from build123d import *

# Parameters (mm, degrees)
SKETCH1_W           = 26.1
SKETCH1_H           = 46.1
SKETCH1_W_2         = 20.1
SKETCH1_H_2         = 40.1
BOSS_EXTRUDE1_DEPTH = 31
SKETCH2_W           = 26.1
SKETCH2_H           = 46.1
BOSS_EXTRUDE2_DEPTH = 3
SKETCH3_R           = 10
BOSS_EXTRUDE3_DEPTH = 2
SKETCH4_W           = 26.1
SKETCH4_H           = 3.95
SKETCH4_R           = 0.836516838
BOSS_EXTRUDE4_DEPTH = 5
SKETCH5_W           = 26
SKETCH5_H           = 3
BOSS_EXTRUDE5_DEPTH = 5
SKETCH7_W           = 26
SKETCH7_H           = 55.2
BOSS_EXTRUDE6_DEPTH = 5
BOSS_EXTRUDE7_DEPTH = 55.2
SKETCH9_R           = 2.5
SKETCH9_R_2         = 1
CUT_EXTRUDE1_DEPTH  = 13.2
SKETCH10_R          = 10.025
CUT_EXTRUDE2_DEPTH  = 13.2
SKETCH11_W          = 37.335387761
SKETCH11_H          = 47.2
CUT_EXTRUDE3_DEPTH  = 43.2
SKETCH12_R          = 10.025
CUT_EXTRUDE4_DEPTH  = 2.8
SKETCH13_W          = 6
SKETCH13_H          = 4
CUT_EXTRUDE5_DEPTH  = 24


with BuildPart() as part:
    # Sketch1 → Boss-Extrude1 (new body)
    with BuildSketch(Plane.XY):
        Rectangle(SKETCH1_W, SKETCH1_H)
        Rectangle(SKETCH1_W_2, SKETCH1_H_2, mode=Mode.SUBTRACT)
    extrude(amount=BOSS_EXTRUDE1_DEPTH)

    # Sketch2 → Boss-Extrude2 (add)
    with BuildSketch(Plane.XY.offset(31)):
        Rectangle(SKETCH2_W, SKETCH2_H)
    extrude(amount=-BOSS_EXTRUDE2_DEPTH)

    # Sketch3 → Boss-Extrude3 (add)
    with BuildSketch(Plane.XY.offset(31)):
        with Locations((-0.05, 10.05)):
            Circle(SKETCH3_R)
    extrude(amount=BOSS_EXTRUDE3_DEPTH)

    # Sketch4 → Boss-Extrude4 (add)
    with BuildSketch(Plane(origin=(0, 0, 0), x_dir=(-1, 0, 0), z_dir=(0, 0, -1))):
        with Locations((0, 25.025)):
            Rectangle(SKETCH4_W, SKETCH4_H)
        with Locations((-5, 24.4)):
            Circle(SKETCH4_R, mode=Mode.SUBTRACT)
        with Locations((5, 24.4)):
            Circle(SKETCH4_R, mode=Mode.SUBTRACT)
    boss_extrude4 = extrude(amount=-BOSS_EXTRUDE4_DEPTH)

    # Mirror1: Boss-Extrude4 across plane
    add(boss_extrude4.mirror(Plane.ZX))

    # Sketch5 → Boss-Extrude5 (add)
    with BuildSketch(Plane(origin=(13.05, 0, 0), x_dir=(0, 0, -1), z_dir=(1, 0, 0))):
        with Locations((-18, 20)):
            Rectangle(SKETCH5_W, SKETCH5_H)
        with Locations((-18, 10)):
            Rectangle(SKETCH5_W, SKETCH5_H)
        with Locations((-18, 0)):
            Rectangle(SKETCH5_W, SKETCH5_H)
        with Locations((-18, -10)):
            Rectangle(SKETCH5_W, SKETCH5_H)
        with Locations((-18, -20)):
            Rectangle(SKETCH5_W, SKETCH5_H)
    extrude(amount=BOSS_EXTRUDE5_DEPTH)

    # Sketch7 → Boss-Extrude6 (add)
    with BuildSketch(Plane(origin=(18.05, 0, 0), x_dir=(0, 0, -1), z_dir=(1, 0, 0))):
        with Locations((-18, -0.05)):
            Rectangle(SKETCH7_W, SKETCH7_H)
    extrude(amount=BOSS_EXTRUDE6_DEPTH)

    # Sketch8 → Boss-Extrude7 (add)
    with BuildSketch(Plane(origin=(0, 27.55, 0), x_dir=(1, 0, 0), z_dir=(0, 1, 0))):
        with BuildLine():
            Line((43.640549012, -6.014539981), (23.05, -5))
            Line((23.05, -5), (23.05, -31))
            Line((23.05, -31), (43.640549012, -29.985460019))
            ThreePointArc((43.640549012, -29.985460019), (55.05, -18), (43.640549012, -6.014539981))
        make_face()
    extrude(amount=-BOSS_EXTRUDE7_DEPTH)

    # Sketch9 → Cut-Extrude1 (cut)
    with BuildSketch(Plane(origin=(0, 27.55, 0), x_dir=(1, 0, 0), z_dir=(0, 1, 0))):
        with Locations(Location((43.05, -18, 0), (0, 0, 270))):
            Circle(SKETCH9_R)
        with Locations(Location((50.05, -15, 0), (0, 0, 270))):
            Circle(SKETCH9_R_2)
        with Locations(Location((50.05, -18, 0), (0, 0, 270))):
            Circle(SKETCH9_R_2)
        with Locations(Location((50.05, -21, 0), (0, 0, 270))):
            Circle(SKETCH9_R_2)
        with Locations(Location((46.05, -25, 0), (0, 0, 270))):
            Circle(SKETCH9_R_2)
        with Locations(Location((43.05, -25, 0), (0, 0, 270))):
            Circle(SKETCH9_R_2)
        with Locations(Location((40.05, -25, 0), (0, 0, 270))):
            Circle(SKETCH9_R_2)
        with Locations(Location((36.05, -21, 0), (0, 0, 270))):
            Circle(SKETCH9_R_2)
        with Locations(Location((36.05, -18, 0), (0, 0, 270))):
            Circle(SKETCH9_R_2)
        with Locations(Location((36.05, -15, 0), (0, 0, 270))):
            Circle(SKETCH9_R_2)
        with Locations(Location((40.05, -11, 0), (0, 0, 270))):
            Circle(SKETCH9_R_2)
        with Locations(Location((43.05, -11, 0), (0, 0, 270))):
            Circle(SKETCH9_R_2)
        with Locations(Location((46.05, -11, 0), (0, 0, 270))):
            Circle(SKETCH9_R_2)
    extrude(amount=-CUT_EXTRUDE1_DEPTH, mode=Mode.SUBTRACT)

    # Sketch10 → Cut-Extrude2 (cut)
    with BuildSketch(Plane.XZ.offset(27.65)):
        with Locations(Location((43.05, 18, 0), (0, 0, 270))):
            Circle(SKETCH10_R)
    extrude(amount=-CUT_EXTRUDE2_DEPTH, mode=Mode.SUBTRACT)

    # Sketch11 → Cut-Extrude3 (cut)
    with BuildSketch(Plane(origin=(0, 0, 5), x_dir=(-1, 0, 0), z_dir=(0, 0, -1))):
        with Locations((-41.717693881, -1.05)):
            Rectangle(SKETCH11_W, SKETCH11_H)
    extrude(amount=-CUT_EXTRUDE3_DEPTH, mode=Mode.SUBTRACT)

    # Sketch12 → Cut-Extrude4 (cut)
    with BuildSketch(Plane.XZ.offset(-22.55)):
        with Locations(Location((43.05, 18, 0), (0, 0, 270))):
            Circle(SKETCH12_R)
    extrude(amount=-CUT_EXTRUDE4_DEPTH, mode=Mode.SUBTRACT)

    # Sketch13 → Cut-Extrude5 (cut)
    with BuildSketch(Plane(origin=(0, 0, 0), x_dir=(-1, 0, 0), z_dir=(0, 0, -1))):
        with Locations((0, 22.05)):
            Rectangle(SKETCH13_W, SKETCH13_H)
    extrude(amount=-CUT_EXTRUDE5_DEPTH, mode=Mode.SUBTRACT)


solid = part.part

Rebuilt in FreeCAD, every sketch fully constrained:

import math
import FreeCAD as App
import Part
import Sketcher
from FreeCAD import Vector
Q = App.Units.Quantity

doc = App.newDocument("Part")
body = doc.addObject("PartDesign::Body", "Body")

sketch1 = body.newObject("Sketcher::SketchObject", "Sketch")
sketch1.AttachmentSupport = (doc.getObject("XY_Plane"), [""])
sketch1.MapMode = "FlatFace"
sketch1.addGeometry([
    Part.LineSegment(Vector(-13.05, 23.05, 0), Vector(-13.05, -23.05, 0)),
    Part.LineSegment(Vector(-13.05, -23.05, 0), Vector(13.05, -23.05, 0)),
    Part.LineSegment(Vector(13.05, -23.05, 0), Vector(13.05, 23.05, 0)),
    Part.LineSegment(Vector(13.05, 23.05, 0), Vector(-13.05, 23.05, 0)),
    Part.LineSegment(Vector(10.05, -20.05, 0), Vector(-10.05, -20.05, 0)),
    Part.LineSegment(Vector(-10.05, -20.05, 0), Vector(-10.05, 20.05, 0)),
    Part.LineSegment(Vector(-10.05, 20.05, 0), Vector(10.05, 20.05, 0)),
    Part.LineSegment(Vector(10.05, 20.05, 0), Vector(10.05, -20.05, 0)),
], False)
sketch1.addConstraint([
    Sketcher.Constraint("Coincident", 0, 2, 1, 1),
    Sketcher.Constraint("Coincident", 1, 2, 2, 1),
    Sketcher.Constraint("Coincident", 2, 2, 3, 1),
    Sketcher.Constraint("Coincident", 3, 2, 0, 1),
    Sketcher.Constraint("Coincident", 4, 2, 5, 1),
    Sketcher.Constraint("Coincident", 5, 2, 6, 1),
    Sketcher.Constraint("Coincident", 6, 2, 7, 1),
    Sketcher.Constraint("Coincident", 7, 2, 4, 1),
    Sketcher.Constraint("Vertical", 0),
    Sketcher.Constraint("Horizontal", 1),
    Sketcher.Constraint("Vertical", 2),
    Sketcher.Constraint("Horizontal", 3),
    Sketcher.Constraint("Horizontal", 4),
    Sketcher.Constraint("Vertical", 5),
    Sketcher.Constraint("Horizontal", 6),
    Sketcher.Constraint("Vertical", 7),
    Sketcher.Constraint("Symmetric", 0, 2, 2, 2, -1, 1),
    Sketcher.Constraint("Symmetric", 4, 2, 6, 2, -1, 1),
    Sketcher.Constraint("DistanceX", 1, 1, 1, 2, Q("26.1 mm")),
    Sketcher.Constraint("DistanceX", 4, 2, 4, 1, Q("20.1 mm")),
    Sketcher.Constraint("DistanceY", 0, 2, 0, 1, Q("46.1 mm")),
    Sketcher.Constraint("DistanceY", 5, 1, 5, 2, Q("40.1 mm")),
])
pad1 = body.newObject("PartDesign::Pad", "Pad")
pad1.Profile = sketch1
pad1.Length = 31

sketch2 = body.newObject("Sketcher::SketchObject", "Sketch001")
sketch2.AttachmentSupport = (doc.getObject("XY_Plane"), [""])
sketch2.MapMode = "FlatFace"
sketch2.AttachmentOffset = App.Placement(Vector(0, 0, 31), App.Rotation())
sketch2.addGeometry([
    Part.LineSegment(Vector(-13.05, 23.05, 0), Vector(-13.05, -23.05, 0)),
    Part.LineSegment(Vector(-13.05, -23.05, 0), Vector(13.05, -23.05, 0)),
    Part.LineSegment(Vector(13.05, -23.05, 0), Vector(13.05, 23.05, 0)),
    Part.LineSegment(Vector(13.05, 23.05, 0), Vector(-13.05, 23.05, 0)),
], False)
sketch2.addConstraint([
    Sketcher.Constraint("Coincident", 0, 2, 1, 1),
    Sketcher.Constraint("Coincident", 1, 2, 2, 1),
    Sketcher.Constraint("Coincident", 2, 2, 3, 1),
    Sketcher.Constraint("Coincident", 3, 2, 0, 1),
    Sketcher.Constraint("Vertical", 0),
    Sketcher.Constraint("Horizontal", 1),
    Sketcher.Constraint("Vertical", 2),
    Sketcher.Constraint("Horizontal", 3),
    Sketcher.Constraint("Symmetric", 0, 2, 2, 2, -1, 1),
    Sketcher.Constraint("DistanceX", 1, 1, 1, 2, Q("26.1 mm")),
    Sketcher.Constraint("DistanceY", 0, 2, 0, 1, Q("46.1 mm")),
])
pad2 = body.newObject("PartDesign::Pad", "Pad001")
pad2.Profile = sketch2
pad2.Length = 3
pad2.Reversed = True

sketch3 = body.newObject("Sketcher::SketchObject", "Sketch002")
sketch3.AttachmentSupport = (doc.getObject("XY_Plane"), [""])
sketch3.MapMode = "FlatFace"
sketch3.AttachmentOffset = App.Placement(Vector(0, 0, 31), App.Rotation())
sketch3.addGeometry(Part.Circle(Vector(-0.05, 10.05, 0), Vector(0, 0, 1), 10), False)
sketch3.addConstraint([
    Sketcher.Constraint("Diameter", 0, Q("20 mm")),
    Sketcher.Constraint("DistanceX", 0, 3, -1, 1, Q("0.05 mm")),
    Sketcher.Constraint("DistanceY", -1, 1, 0, 3, Q("10.05 mm")),
])
pad3 = body.newObject("PartDesign::Pad", "Pad002")
pad3.Profile = sketch3
pad3.Length = 2

sketch4 = body.newObject("Sketcher::SketchObject", "Sketch003")
sketch4.AttachmentSupport = (doc.getObject("XY_Plane"), [""])
sketch4.MapMode = "FlatFace"
sketch4.addGeometry([
    Part.LineSegment(Vector(13.05, 27, 0), Vector(13.05, 23.05, 0)),
    Part.LineSegment(Vector(13.05, 23.05, 0), Vector(-13.05, 23.05, 0)),
    Part.LineSegment(Vector(-13.05, 23.05, 0), Vector(-13.05, 27, 0)),
    Part.LineSegment(Vector(-13.05, 27, 0), Vector(13.05, 27, 0)),
    Part.Circle(Vector(5, 24.4, 0), Vector(0, 0, 1), 0.836517),
    Part.Circle(Vector(-5, 24.4, 0), Vector(0, 0, 1), 0.836517),
], False)
sketch4.addConstraint([
    Sketcher.Constraint("Coincident", 0, 2, 1, 1),
    Sketcher.Constraint("Coincident", 1, 2, 2, 1),
    Sketcher.Constraint("Coincident", 2, 2, 3, 1),
    Sketcher.Constraint("Coincident", 3, 2, 0, 1),
    Sketcher.Constraint("Vertical", 0),
    Sketcher.Constraint("Horizontal", 1),
    Sketcher.Constraint("Vertical", 2),
    Sketcher.Constraint("Horizontal", 3),
    Sketcher.Constraint("Equal", 4, 5),
    Sketcher.Constraint("Symmetric", 4, 3, 5, 3, -2),
    Sketcher.Constraint("DistanceX", 1, 2, 1, 1, Q("26.1 mm")),
    Sketcher.Constraint("DistanceX", -1, 1, 4, 3, Q("5 mm")),
    Sketcher.Constraint("DistanceY", -1, 1, 2, 2, Q("27 mm")),
    Sketcher.Constraint("DistanceY", 0, 2, 0, 1, Q("3.95 mm")),
    Sketcher.Constraint("DistanceY", -1, 1, 4, 3, Q("24.4 mm")),
    Sketcher.Constraint("DistanceX", -1, 1, 0, 2, Q("13.05 mm")),
    Sketcher.Constraint("Diameter", 4, Q("1.673034 mm")),
])
pad4 = body.newObject("PartDesign::Pad", "Pad003")
pad4.Profile = sketch4
pad4.Length = 5
doc.recompute()

mirrored = body.newObject("PartDesign::Mirrored", "Mirrored")
mirrored.Originals = [pad4]
mirrored.MirrorPlane = (doc.getObject("XZ_Plane"), [""])
body.Tip = mirrored

sketch5 = body.newObject("Sketcher::SketchObject", "Sketch004")
sketch5.AttachmentSupport = (doc.getObject("YZ_Plane"), [""])
sketch5.MapMode = "FlatFace"
sketch5.AttachmentOffset = App.Placement(Vector(0, 0, 13.05), App.Rotation())
sketch5.addGeometry([
    Part.LineSegment(Vector(21.5, 31, 0), Vector(18.5, 31, 0)),
    Part.LineSegment(Vector(18.5, 31, 0), Vector(18.5, 5, 0)),
    Part.LineSegment(Vector(18.5, 5, 0), Vector(21.5, 5, 0)),
    Part.LineSegment(Vector(21.5, 5, 0), Vector(21.5, 31, 0)),
    Part.LineSegment(Vector(11.5, 31, 0), Vector(8.5, 31, 0)),
    Part.LineSegment(Vector(8.5, 31, 0), Vector(8.5, 5, 0)),
    Part.LineSegment(Vector(8.5, 5, 0), Vector(11.5, 5, 0)),
    Part.LineSegment(Vector(11.5, 5, 0), Vector(11.5, 31, 0)),
    Part.LineSegment(Vector(1.5, 31, 0), Vector(-1.5, 31, 0)),
    Part.LineSegment(Vector(-1.5, 31, 0), Vector(-1.5, 5, 0)),
    Part.LineSegment(Vector(-1.5, 5, 0), Vector(1.5, 5, 0)),
    Part.LineSegment(Vector(1.5, 5, 0), Vector(1.5, 31, 0)),
    Part.LineSegment(Vector(-8.5, 31, 0), Vector(-11.5, 31, 0)),
    Part.LineSegment(Vector(-11.5, 31, 0), Vector(-11.5, 5, 0)),
    Part.LineSegment(Vector(-11.5, 5, 0), Vector(-8.5, 5, 0)),
    Part.LineSegment(Vector(-8.5, 5, 0), Vector(-8.5, 31, 0)),
    Part.LineSegment(Vector(-18.5, 31, 0), Vector(-21.5, 31, 0)),
    Part.LineSegment(Vector(-21.5, 31, 0), Vector(-21.5, 5, 0)),
    Part.LineSegment(Vector(-21.5, 5, 0), Vector(-18.5, 5, 0)),
    Part.LineSegment(Vector(-18.5, 5, 0), Vector(-18.5, 31, 0)),
], False)
sketch5.addConstraint([
    Sketcher.Constraint("Coincident", 0, 2, 1, 1),
    Sketcher.Constraint("Coincident", 1, 2, 2, 1),
    Sketcher.Constraint("Coincident", 2, 2, 3, 1),
    Sketcher.Constraint("Coincident", 3, 2, 0, 1),
    Sketcher.Constraint("Coincident", 4, 2, 5, 1),
    Sketcher.Constraint("Coincident", 5, 2, 6, 1),
    Sketcher.Constraint("Coincident", 6, 2, 7, 1),
    Sketcher.Constraint("Coincident", 7, 2, 4, 1),
    Sketcher.Constraint("Coincident", 8, 2, 9, 1),
    Sketcher.Constraint("Coincident", 9, 2, 10, 1),
    Sketcher.Constraint("Coincident", 10, 2, 11, 1),
    Sketcher.Constraint("Coincident", 11, 2, 8, 1),
    Sketcher.Constraint("Coincident", 12, 2, 13, 1),
    Sketcher.Constraint("Coincident", 13, 2, 14, 1),
    Sketcher.Constraint("Coincident", 14, 2, 15, 1),
    Sketcher.Constraint("Coincident", 15, 2, 12, 1),
    Sketcher.Constraint("Coincident", 16, 2, 17, 1),
    Sketcher.Constraint("Coincident", 17, 2, 18, 1),
    Sketcher.Constraint("Coincident", 18, 2, 19, 1),
    Sketcher.Constraint("Coincident", 19, 2, 16, 1),
    Sketcher.Constraint("Horizontal", 0),
    Sketcher.Constraint("Vertical", 1),
    Sketcher.Constraint("Horizontal", 2),
    Sketcher.Constraint("Vertical", 3),
    Sketcher.Constraint("Horizontal", 4),
    Sketcher.Constraint("Vertical", 5),
    Sketcher.Constraint("Horizontal", 6),
    Sketcher.Constraint("Vertical", 7),
    Sketcher.Constraint("Horizontal", 8),
    Sketcher.Constraint("Vertical", 9),
    Sketcher.Constraint("Horizontal", 10),
    Sketcher.Constraint("Vertical", 11),
    Sketcher.Constraint("Horizontal", 12),
    Sketcher.Constraint("Vertical", 13),
    Sketcher.Constraint("Horizontal", 14),
    Sketcher.Constraint("Vertical", 15),
    Sketcher.Constraint("Horizontal", 16),
    Sketcher.Constraint("Vertical", 17),
    Sketcher.Constraint("Horizontal", 18),
    Sketcher.Constraint("Vertical", 19),
    Sketcher.Constraint("Symmetric", 7, 2, 12, 2, -2),
    Sketcher.Constraint("Symmetric", 5, 2, 14, 2, -2),
    Sketcher.Constraint("Symmetric", 3, 2, 16, 2, -2),
    Sketcher.Constraint("Symmetric", 1, 2, 18, 2, -2),
    Sketcher.Constraint("Horizontal", 3, 2, 4, 2),
    Sketcher.Constraint("Horizontal", 2, 2, 5, 2),
    Sketcher.Constraint("Horizontal", 7, 2, 8, 2),
    Sketcher.Constraint("Horizontal", 6, 2, 9, 2),
    Sketcher.Constraint("Equal", 2, 4),
    Sketcher.Constraint("Equal", 6, 8),
    Sketcher.Constraint("DistanceX", 0, 2, 0, 1, Q("3 mm")),
    Sketcher.Constraint("DistanceY", 1, 2, 1, 1, Q("26 mm")),
    Sketcher.Constraint("DistanceY", -1, 1, 0, 2, Q("31 mm")),
    Sketcher.Constraint("DistanceX", 4, 2, 0, 2, Q("10 mm")),
    Sketcher.Constraint("DistanceX", 8, 2, 4, 2, Q("10 mm")),
    Sketcher.Constraint("DistanceX", 12, 2, 8, 2, Q("10 mm")),
])
pad5 = body.newObject("PartDesign::Pad", "Pad004")
pad5.Profile = sketch5
pad5.Length = 5

sketch6 = body.newObject("Sketcher::SketchObject", "Sketch005")
sketch6.AttachmentSupport = (doc.getObject("YZ_Plane"), [""])
sketch6.MapMode = "FlatFace"
sketch6.AttachmentOffset = App.Placement(Vector(0, 0, 18.05), App.Rotation())
sketch6.addGeometry([
    Part.LineSegment(Vector(27.55, 31, 0), Vector(-27.65, 31, 0)),
    Part.LineSegment(Vector(-27.65, 31, 0), Vector(-27.65, 5, 0)),
    Part.LineSegment(Vector(-27.65, 5, 0), Vector(27.55, 5, 0)),
    Part.LineSegment(Vector(27.55, 5, 0), Vector(27.55, 31, 0)),
], False)
sketch6.addConstraint([
    Sketcher.Constraint("Coincident", 0, 2, 1, 1),
    Sketcher.Constraint("Coincident", 1, 2, 2, 1),
    Sketcher.Constraint("Coincident", 2, 2, 3, 1),
    Sketcher.Constraint("Coincident", 3, 2, 0, 1),
    Sketcher.Constraint("Horizontal", 0),
    Sketcher.Constraint("Vertical", 1),
    Sketcher.Constraint("Horizontal", 2),
    Sketcher.Constraint("Vertical", 3),
    Sketcher.Constraint("DistanceY", 1, 2, 1, 1, Q("26 mm")),
    Sketcher.Constraint("DistanceX", 0, 2, 0, 1, Q("55.2 mm")),
    Sketcher.Constraint("DistanceY", -1, 1, 0, 2, Q("31 mm")),
    Sketcher.Constraint("DistanceX", 0, 2, -1, 1, Q("27.65 mm")),
])
pad6 = body.newObject("PartDesign::Pad", "Pad005")
pad6.Profile = sketch6
pad6.Length = 5

sketch7 = body.newObject("Sketcher::SketchObject", "Sketch006")
sketch7.AttachmentSupport = (doc.getObject("XZ_Plane"), [""])
sketch7.MapMode = "FlatFace"
sketch7.AttachmentOffset = App.Placement(Vector(0, 0, -27.55), App.Rotation())
sketch7.addGeometry([
    Part.LineSegment(Vector(43.640549, 6.01454, 0), Vector(23.05, 5, 0)),
    Part.LineSegment(Vector(23.05, 5, 0), Vector(23.05, 31, 0)),
    Part.LineSegment(Vector(23.05, 31, 0), Vector(43.640549, 29.98546, 0)),
    Part.ArcOfCircle(Part.Circle(Vector(43.05, 18, 0), Vector(0, 0, 1), 12), math.radians(-87.179197), math.radians(87.179197)),
], False)
sketch7.addConstraint([
    Sketcher.Constraint("Coincident", 0, 2, 1, 1),
    Sketcher.Constraint("Coincident", 1, 2, 2, 1),
    Sketcher.Constraint("Tangent", 2, 2, 3, 2),
    Sketcher.Constraint("Tangent", 3, 1, 0, 1),
    Sketcher.Constraint("Vertical", 1),
    Sketcher.Constraint("Vertical", 2, 2, 3, 1),
    Sketcher.Constraint("Radius", 3, Q("12 mm")),
    Sketcher.Constraint("DistanceY", 1, 1, 1, 2, Q("26 mm")),
    Sketcher.Constraint("DistanceY", -1, 1, 3, 3, Q("18 mm")),
    Sketcher.Constraint("DistanceX", 0, 2, 3, 3, Q("20 mm")),
    Sketcher.Constraint("DistanceX", -1, 1, 3, 3, Q("43.05 mm")),
])
pad7 = body.newObject("PartDesign::Pad", "Pad006")
pad7.Profile = sketch7
pad7.Length = 55.2

sketch8 = body.newObject("Sketcher::SketchObject", "Sketch007")
sketch8.AttachmentSupport = (doc.getObject("XZ_Plane"), [""])
sketch8.MapMode = "FlatFace"
sketch8.AttachmentOffset = App.Placement(Vector(0, 0, -27.55), App.Rotation())
sketch8.addGeometry([
    Part.Circle(Vector(43.05, 18, 0), Vector(0, 0, 1), 2.5),
    Part.Circle(Vector(50.05, 15, 0), Vector(0, 0, 1), 1),
    Part.Circle(Vector(50.05, 18, 0), Vector(0, 0, 1), 1),
    Part.Circle(Vector(50.05, 21, 0), Vector(0, 0, 1), 1),
    Part.Circle(Vector(46.05, 25, 0), Vector(0, 0, 1), 1),
    Part.Circle(Vector(43.05, 25, 0), Vector(0, 0, 1), 1),
    Part.Circle(Vector(40.05, 25, 0), Vector(0, 0, 1), 1),
    Part.Circle(Vector(36.05, 21, 0), Vector(0, 0, 1), 1),
    Part.Circle(Vector(36.05, 18, 0), Vector(0, 0, 1), 1),
    Part.Circle(Vector(36.05, 15, 0), Vector(0, 0, 1), 1),
    Part.Circle(Vector(40.05, 11, 0), Vector(0, 0, 1), 1),
    Part.Circle(Vector(43.05, 11, 0), Vector(0, 0, 1), 1),
    Part.Circle(Vector(46.05, 11, 0), Vector(0, 0, 1), 1),
], False)
sketch8.addConstraint([
    Sketcher.Constraint("Equal", 1, 2),
    Sketcher.Constraint("Equal", 2, 3),
    Sketcher.Constraint("Equal", 3, 4),
    Sketcher.Constraint("Equal", 4, 5),
    Sketcher.Constraint("Equal", 5, 6),
    Sketcher.Constraint("Equal", 6, 7),
    Sketcher.Constraint("Equal", 7, 8),
    Sketcher.Constraint("Equal", 8, 9),
    Sketcher.Constraint("Equal", 9, 10),
    Sketcher.Constraint("Equal", 10, 11),
    Sketcher.Constraint("Equal", 11, 12),
    Sketcher.Constraint("Horizontal", 0, 3, 2, 3),
    Sketcher.Constraint("Horizontal", 4, 3, 5, 3),
    Sketcher.Constraint("Horizontal", 5, 3, 6, 3),
    Sketcher.Constraint("Horizontal", 3, 3, 7, 3),
    Sketcher.Constraint("Horizontal", 2, 3, 8, 3),
    Sketcher.Constraint("Horizontal", 1, 3, 9, 3),
    Sketcher.Constraint("Horizontal", 10, 3, 11, 3),
    Sketcher.Constraint("Horizontal", 11, 3, 12, 3),
    Sketcher.Constraint("Vertical", 1, 3, 2, 3),
    Sketcher.Constraint("Vertical", 2, 3, 3, 3),
    Sketcher.Constraint("Vertical", 0, 3, 5, 3),
    Sketcher.Constraint("Vertical", 7, 3, 8, 3),
    Sketcher.Constraint("Vertical", 8, 3, 9, 3),
    Sketcher.Constraint("Vertical", 6, 3, 10, 3),
    Sketcher.Constraint("Vertical", 5, 3, 11, 3),
    Sketcher.Constraint("Vertical", 4, 3, 12, 3),
    Sketcher.Constraint("Diameter", 0, Q("5 mm")),
    Sketcher.Constraint("Diameter", 1, Q("2 mm")),
    Sketcher.Constraint("DistanceY", -1, 1, 0, 3, Q("18 mm")),
    Sketcher.Constraint("DistanceY", -1, 1, 1, 3, Q("15 mm")),
    Sketcher.Constraint("DistanceY", -1, 1, 3, 3, Q("21 mm")),
    Sketcher.Constraint("DistanceY", -1, 1, 4, 3, Q("25 mm")),
    Sketcher.Constraint("DistanceY", -1, 1, 10, 3, Q("11 mm")),
    Sketcher.Constraint("DistanceX", 0, 3, 1, 3, Q("7 mm")),
    Sketcher.Constraint("DistanceX", 4, 3, 3, 3, Q("4 mm")),
    Sketcher.Constraint("DistanceX", 6, 3, 5, 3, Q("3 mm")),
    Sketcher.Constraint("DistanceX", 7, 3, 6, 3, Q("4 mm")),
    Sketcher.Constraint("DistanceX", -1, 1, 0, 3, Q("43.05 mm")),
])
pocket1 = body.newObject("PartDesign::Pocket", "Pocket")
pocket1.Profile = sketch8
pocket1.Length = 13.2
pocket1.Reversed = True

sketch9 = body.newObject("Sketcher::SketchObject", "Sketch008")
sketch9.AttachmentSupport = (doc.getObject("XZ_Plane"), [""])
sketch9.MapMode = "FlatFace"
sketch9.AttachmentOffset = App.Placement(Vector(0, 0, 27.65), App.Rotation())
sketch9.addGeometry(Part.Circle(Vector(43.05, 18, 0), Vector(0, 0, 1), 10.025), False)
sketch9.addConstraint([
    Sketcher.Constraint("Diameter", 0, Q("20.05 mm")),
    Sketcher.Constraint("DistanceY", -1, 1, 0, 3, Q("18 mm")),
    Sketcher.Constraint("DistanceX", -1, 1, 0, 3, Q("43.05 mm")),
])
pocket2 = body.newObject("PartDesign::Pocket", "Pocket001")
pocket2.Profile = sketch9
pocket2.Length = 13.2

sketch10 = body.newObject("Sketcher::SketchObject", "Sketch009")
sketch10.AttachmentSupport = (doc.getObject("XY_Plane"), [""])
sketch10.MapMode = "FlatFace"
sketch10.AttachmentOffset = App.Placement(Vector(0, 0, 5), App.Rotation())
sketch10.addGeometry([
    Part.LineSegment(Vector(60.385388, 22.55, 0), Vector(60.385388, -24.65, 0)),
    Part.LineSegment(Vector(60.385388, -24.65, 0), Vector(23.05, -24.65, 0)),
    Part.LineSegment(Vector(23.05, -24.65, 0), Vector(23.05, 22.55, 0)),
    Part.LineSegment(Vector(23.05, 22.55, 0), Vector(60.385388, 22.55, 0)),
], False)
sketch10.addConstraint([
    Sketcher.Constraint("Coincident", 0, 2, 1, 1),
    Sketcher.Constraint("Coincident", 1, 2, 2, 1),
    Sketcher.Constraint("Coincident", 2, 2, 3, 1),
    Sketcher.Constraint("Coincident", 3, 2, 0, 1),
    Sketcher.Constraint("Vertical", 0),
    Sketcher.Constraint("Horizontal", 1),
    Sketcher.Constraint("Vertical", 2),
    Sketcher.Constraint("Horizontal", 3),
    Sketcher.Constraint("DistanceY", 0, 2, 0, 1, Q("47.2 mm")),
    Sketcher.Constraint("DistanceY", 0, 2, -1, 1, Q("24.65 mm")),
    Sketcher.Constraint("DistanceX", -1, 1, 1, 2, Q("23.05 mm")),
    Sketcher.Constraint("DistanceX", 1, 2, 1, 1, Q("37.335388 mm")),
])
pocket3 = body.newObject("PartDesign::Pocket", "Pocket002")
pocket3.Profile = sketch10
pocket3.Length = 43.2
pocket3.Reversed = True

sketch11 = body.newObject("Sketcher::SketchObject", "Sketch010")
sketch11.AttachmentSupport = (doc.getObject("XZ_Plane"), [""])
sketch11.MapMode = "FlatFace"
sketch11.AttachmentOffset = App.Placement(Vector(0, 0, -22.55), App.Rotation())
sketch11.addGeometry(Part.Circle(Vector(43.05, 18, 0), Vector(0, 0, 1), 10.025), False)
sketch11.addConstraint([
    Sketcher.Constraint("Diameter", 0, Q("20.05 mm")),
    Sketcher.Constraint("DistanceY", -1, 1, 0, 3, Q("18 mm")),
    Sketcher.Constraint("DistanceX", -1, 1, 0, 3, Q("43.05 mm")),
])
pocket4 = body.newObject("PartDesign::Pocket", "Pocket003")
pocket4.Profile = sketch11
pocket4.Length = 2.8

sketch12 = body.newObject("Sketcher::SketchObject", "Sketch011")
sketch12.AttachmentSupport = (doc.getObject("XY_Plane"), [""])
sketch12.MapMode = "FlatFace"
sketch12.addGeometry([
    Part.LineSegment(Vector(3, 24.05, 0), Vector(3, 20.05, 0)),
    Part.LineSegment(Vector(3, 20.05, 0), Vector(-3, 20.05, 0)),
    Part.LineSegment(Vector(-3, 20.05, 0), Vector(-3, 24.05, 0)),
    Part.LineSegment(Vector(-3, 24.05, 0), Vector(3, 24.05, 0)),
], False)
sketch12.addConstraint([
    Sketcher.Constraint("Coincident", 0, 2, 1, 1),
    Sketcher.Constraint("Coincident", 1, 2, 2, 1),
    Sketcher.Constraint("Coincident", 2, 2, 3, 1),
    Sketcher.Constraint("Coincident", 3, 2, 0, 1),
    Sketcher.Constraint("Vertical", 0),
    Sketcher.Constraint("Horizontal", 1),
    Sketcher.Constraint("Vertical", 2),
    Sketcher.Constraint("Horizontal", 3),
    Sketcher.Constraint("DistanceX", 1, 2, 1, 1, Q("6 mm")),
    Sketcher.Constraint("DistanceY", 0, 2, 0, 1, Q("4 mm")),
    Sketcher.Constraint("DistanceX", -1, 1, 0, 2, Q("3 mm")),
    Sketcher.Constraint("DistanceY", -1, 1, 0, 2, Q("20.05 mm")),
])
pocket5 = body.newObject("PartDesign::Pocket", "Pocket004")
pocket5.Profile = sketch12
pocket5.Length = 24
pocket5.Reversed = True

doc.recompute()
